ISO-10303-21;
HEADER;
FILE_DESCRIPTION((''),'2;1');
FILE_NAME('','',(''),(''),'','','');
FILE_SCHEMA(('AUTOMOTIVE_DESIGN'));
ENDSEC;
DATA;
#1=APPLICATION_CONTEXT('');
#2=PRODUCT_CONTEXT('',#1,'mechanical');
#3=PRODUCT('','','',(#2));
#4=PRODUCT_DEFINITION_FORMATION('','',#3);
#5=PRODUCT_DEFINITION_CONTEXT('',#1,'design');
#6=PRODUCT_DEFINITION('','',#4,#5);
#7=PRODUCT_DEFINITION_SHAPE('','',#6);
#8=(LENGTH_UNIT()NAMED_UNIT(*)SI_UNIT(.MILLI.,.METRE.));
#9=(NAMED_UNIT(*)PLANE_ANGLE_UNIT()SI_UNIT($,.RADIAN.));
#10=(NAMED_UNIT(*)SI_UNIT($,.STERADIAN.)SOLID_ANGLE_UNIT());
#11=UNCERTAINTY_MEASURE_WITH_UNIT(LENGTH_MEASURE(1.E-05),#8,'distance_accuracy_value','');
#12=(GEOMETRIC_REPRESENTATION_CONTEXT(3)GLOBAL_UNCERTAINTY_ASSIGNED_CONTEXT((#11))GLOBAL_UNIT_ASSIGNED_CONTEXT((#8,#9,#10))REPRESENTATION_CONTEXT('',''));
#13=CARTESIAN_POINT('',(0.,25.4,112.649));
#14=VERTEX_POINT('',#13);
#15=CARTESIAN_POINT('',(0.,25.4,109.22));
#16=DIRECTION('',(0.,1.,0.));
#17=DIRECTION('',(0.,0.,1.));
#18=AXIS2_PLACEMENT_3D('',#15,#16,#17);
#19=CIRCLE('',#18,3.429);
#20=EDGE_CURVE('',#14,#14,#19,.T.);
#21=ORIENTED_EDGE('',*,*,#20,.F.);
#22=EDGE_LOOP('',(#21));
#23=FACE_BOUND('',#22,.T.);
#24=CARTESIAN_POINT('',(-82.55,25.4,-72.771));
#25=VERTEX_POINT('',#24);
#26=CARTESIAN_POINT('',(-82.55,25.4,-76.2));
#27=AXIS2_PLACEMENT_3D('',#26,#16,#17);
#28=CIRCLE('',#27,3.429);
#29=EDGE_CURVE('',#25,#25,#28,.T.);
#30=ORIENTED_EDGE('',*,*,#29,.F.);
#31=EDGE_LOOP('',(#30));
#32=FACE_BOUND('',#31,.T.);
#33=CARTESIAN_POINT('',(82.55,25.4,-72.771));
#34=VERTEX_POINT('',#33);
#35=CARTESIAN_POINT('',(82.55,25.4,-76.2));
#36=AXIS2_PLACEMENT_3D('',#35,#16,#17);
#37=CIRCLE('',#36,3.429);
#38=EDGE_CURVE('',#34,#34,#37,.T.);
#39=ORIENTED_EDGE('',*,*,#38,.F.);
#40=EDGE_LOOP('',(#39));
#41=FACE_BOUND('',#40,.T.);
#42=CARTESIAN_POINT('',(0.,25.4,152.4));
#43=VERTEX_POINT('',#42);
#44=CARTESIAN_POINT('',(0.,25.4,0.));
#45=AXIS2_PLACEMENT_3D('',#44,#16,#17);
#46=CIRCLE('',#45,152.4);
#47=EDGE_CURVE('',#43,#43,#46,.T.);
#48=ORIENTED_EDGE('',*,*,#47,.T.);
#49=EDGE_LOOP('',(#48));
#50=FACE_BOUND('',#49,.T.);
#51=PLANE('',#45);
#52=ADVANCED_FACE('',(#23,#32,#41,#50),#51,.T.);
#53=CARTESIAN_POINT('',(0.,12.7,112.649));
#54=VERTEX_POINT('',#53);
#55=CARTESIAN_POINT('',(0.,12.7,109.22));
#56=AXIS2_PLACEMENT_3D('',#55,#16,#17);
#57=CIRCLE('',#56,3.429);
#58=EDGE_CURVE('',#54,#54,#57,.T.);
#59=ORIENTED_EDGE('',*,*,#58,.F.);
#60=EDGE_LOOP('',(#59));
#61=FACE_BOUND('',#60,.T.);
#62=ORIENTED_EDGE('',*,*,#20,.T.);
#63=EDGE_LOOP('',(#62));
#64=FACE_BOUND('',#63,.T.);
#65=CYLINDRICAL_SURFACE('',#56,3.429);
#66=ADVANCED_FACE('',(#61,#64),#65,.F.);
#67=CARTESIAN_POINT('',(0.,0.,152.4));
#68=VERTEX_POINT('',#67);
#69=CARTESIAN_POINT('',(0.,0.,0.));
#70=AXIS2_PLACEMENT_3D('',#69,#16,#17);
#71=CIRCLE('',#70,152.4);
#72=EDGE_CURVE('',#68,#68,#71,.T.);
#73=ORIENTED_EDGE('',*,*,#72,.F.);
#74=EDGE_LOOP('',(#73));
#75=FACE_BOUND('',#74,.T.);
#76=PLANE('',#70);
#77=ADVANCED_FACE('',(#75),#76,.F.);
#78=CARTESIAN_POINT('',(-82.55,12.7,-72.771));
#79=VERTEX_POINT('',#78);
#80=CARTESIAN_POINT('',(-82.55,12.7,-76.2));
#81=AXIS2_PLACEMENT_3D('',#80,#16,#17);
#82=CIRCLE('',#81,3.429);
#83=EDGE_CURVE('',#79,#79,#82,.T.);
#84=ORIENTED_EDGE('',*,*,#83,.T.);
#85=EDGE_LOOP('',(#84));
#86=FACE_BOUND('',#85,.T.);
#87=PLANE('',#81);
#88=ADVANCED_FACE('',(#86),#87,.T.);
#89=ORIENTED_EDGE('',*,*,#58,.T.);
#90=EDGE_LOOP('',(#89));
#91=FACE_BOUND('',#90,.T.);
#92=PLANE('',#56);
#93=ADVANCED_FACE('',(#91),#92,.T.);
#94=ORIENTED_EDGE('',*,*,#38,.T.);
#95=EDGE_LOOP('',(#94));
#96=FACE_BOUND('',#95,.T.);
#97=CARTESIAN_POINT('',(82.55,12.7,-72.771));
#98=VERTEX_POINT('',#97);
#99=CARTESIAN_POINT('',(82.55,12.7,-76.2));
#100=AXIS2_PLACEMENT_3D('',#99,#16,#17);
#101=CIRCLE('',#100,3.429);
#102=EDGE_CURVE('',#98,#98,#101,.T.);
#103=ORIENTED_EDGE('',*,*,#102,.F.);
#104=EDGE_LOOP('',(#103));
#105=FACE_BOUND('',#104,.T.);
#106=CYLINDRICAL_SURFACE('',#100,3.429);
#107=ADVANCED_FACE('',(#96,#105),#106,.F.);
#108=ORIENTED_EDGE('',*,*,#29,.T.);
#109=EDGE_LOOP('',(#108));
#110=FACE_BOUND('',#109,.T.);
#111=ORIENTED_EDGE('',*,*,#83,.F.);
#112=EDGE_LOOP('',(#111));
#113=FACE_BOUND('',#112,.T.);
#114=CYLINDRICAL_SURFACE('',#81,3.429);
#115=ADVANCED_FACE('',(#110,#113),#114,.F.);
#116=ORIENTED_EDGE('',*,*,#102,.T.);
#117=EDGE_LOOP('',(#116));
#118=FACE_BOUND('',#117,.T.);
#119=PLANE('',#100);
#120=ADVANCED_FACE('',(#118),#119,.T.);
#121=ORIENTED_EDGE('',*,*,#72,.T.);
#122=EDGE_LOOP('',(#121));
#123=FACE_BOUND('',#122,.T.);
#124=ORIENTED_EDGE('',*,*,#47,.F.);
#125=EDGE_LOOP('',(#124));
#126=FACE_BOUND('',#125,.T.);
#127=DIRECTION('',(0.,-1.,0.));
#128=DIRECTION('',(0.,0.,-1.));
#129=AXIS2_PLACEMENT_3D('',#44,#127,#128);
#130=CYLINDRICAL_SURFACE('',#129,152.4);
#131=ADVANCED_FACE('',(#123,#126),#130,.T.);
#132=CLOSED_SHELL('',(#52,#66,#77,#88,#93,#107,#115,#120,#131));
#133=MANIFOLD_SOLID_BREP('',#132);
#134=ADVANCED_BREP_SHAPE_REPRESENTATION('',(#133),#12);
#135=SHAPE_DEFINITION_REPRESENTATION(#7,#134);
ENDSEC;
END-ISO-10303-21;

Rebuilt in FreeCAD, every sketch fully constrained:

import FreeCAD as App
import Part
import Sketcher
from FreeCAD import Vector
Q = App.Units.Quantity

doc = App.newDocument("Part")
params = doc.addObject("Spreadsheet::Sheet", "Params")
for row, (alias, value) in enumerate([
    ("sketch1_diameter", "12 in"),
    ("pad1_length", "1 in"),
    ("sketch2_diameter", "0.27 in"),
    ("pocket1_length", "0.5 in"),
], start=1):
    params.set(f"A{row}", alias)
    params.set(f"B{row}", "=" + value)
    params.setAlias(f"B{row}", alias)

body = doc.addObject("PartDesign::Body", "Body")

# Sketch on XZ plane
sketch1 = body.newObject("Sketcher::SketchObject", "Sketch")
sketch1.AttachmentSupport = (doc.getObject("XZ_Plane"), [""])
sketch1.MapMode = "FlatFace"
sketch1.addGeometry(Part.Circle(Vector(0, 0, 0), Vector(0, 0, 1), 152), False)
sketch1.addConstraint(Sketcher.Constraint("Coincident", 0, 3, -1, 1))
sketch1.addConstraint(Sketcher.Constraint("Diameter", 0, Q("12 in")))
sketch1.setExpression("Constraints[1]", "Params.sketch1_diameter")
pad1 = body.newObject("PartDesign::Pad", "Pad")
pad1.Profile = sketch1
pad1.setExpression("Length", "Params.pad1_length")
pad1.Reversed = True

# Sketch on XZ plane
sketch2 = body.newObject("Sketcher::SketchObject", "Sketch001")
sketch2.AttachmentSupport = (doc.getObject("XZ_Plane"), [""])
sketch2.MapMode = "FlatFace"
sketch2.AttachmentOffset = App.Placement(Vector(0, 0, -1 * 25.4), App.Rotation())
sketch2.addGeometry(Part.Circle(Vector(-82.5, -76.2, 0), Vector(0, 0, 1), 3.4), False)
sketch2.addGeometry(Part.Circle(Vector(82.5, -76.2, 0), Vector(0, 0, 1), 3.4), False)
sketch2.addGeometry(Part.Circle(Vector(0, 109.2, 0), Vector(0, 0, 1), 3.4), False)
sketch2.addConstraint(Sketcher.Constraint("Equal", 0, 1))
sketch2.addConstraint(Sketcher.Constraint("Equal", 1, 2))
sketch2.addConstraint(Sketcher.Constraint("Symmetric", 0, 3, 1, 3, -2))
sketch2.addConstraint(Sketcher.Constraint("PointOnObject", 2, 3, -2))
sketch2.addConstraint(Sketcher.Constraint("Diameter", 0, Q("0.27 in")))
sketch2.addConstraint(Sketcher.Constraint("DistanceY", 0, 3, -1, 1, Q("3 in")))
sketch2.addConstraint(Sketcher.Constraint("DistanceY", -1, 1, 2, 3, Q("4.3 in")))
sketch2.addConstraint(Sketcher.Constraint("DistanceX", 0, 3, 1, 3, Q("6.5 in")))
sketch2.setExpression("Constraints[4]", "Params.sketch2_diameter")
pocket1 = body.newObject("PartDesign::Pocket", "Pocket")
pocket1.Profile = sketch2
pocket1.setExpression("Length", "Params.pocket1_length")
pocket1.Reversed = True

doc.recompute()
